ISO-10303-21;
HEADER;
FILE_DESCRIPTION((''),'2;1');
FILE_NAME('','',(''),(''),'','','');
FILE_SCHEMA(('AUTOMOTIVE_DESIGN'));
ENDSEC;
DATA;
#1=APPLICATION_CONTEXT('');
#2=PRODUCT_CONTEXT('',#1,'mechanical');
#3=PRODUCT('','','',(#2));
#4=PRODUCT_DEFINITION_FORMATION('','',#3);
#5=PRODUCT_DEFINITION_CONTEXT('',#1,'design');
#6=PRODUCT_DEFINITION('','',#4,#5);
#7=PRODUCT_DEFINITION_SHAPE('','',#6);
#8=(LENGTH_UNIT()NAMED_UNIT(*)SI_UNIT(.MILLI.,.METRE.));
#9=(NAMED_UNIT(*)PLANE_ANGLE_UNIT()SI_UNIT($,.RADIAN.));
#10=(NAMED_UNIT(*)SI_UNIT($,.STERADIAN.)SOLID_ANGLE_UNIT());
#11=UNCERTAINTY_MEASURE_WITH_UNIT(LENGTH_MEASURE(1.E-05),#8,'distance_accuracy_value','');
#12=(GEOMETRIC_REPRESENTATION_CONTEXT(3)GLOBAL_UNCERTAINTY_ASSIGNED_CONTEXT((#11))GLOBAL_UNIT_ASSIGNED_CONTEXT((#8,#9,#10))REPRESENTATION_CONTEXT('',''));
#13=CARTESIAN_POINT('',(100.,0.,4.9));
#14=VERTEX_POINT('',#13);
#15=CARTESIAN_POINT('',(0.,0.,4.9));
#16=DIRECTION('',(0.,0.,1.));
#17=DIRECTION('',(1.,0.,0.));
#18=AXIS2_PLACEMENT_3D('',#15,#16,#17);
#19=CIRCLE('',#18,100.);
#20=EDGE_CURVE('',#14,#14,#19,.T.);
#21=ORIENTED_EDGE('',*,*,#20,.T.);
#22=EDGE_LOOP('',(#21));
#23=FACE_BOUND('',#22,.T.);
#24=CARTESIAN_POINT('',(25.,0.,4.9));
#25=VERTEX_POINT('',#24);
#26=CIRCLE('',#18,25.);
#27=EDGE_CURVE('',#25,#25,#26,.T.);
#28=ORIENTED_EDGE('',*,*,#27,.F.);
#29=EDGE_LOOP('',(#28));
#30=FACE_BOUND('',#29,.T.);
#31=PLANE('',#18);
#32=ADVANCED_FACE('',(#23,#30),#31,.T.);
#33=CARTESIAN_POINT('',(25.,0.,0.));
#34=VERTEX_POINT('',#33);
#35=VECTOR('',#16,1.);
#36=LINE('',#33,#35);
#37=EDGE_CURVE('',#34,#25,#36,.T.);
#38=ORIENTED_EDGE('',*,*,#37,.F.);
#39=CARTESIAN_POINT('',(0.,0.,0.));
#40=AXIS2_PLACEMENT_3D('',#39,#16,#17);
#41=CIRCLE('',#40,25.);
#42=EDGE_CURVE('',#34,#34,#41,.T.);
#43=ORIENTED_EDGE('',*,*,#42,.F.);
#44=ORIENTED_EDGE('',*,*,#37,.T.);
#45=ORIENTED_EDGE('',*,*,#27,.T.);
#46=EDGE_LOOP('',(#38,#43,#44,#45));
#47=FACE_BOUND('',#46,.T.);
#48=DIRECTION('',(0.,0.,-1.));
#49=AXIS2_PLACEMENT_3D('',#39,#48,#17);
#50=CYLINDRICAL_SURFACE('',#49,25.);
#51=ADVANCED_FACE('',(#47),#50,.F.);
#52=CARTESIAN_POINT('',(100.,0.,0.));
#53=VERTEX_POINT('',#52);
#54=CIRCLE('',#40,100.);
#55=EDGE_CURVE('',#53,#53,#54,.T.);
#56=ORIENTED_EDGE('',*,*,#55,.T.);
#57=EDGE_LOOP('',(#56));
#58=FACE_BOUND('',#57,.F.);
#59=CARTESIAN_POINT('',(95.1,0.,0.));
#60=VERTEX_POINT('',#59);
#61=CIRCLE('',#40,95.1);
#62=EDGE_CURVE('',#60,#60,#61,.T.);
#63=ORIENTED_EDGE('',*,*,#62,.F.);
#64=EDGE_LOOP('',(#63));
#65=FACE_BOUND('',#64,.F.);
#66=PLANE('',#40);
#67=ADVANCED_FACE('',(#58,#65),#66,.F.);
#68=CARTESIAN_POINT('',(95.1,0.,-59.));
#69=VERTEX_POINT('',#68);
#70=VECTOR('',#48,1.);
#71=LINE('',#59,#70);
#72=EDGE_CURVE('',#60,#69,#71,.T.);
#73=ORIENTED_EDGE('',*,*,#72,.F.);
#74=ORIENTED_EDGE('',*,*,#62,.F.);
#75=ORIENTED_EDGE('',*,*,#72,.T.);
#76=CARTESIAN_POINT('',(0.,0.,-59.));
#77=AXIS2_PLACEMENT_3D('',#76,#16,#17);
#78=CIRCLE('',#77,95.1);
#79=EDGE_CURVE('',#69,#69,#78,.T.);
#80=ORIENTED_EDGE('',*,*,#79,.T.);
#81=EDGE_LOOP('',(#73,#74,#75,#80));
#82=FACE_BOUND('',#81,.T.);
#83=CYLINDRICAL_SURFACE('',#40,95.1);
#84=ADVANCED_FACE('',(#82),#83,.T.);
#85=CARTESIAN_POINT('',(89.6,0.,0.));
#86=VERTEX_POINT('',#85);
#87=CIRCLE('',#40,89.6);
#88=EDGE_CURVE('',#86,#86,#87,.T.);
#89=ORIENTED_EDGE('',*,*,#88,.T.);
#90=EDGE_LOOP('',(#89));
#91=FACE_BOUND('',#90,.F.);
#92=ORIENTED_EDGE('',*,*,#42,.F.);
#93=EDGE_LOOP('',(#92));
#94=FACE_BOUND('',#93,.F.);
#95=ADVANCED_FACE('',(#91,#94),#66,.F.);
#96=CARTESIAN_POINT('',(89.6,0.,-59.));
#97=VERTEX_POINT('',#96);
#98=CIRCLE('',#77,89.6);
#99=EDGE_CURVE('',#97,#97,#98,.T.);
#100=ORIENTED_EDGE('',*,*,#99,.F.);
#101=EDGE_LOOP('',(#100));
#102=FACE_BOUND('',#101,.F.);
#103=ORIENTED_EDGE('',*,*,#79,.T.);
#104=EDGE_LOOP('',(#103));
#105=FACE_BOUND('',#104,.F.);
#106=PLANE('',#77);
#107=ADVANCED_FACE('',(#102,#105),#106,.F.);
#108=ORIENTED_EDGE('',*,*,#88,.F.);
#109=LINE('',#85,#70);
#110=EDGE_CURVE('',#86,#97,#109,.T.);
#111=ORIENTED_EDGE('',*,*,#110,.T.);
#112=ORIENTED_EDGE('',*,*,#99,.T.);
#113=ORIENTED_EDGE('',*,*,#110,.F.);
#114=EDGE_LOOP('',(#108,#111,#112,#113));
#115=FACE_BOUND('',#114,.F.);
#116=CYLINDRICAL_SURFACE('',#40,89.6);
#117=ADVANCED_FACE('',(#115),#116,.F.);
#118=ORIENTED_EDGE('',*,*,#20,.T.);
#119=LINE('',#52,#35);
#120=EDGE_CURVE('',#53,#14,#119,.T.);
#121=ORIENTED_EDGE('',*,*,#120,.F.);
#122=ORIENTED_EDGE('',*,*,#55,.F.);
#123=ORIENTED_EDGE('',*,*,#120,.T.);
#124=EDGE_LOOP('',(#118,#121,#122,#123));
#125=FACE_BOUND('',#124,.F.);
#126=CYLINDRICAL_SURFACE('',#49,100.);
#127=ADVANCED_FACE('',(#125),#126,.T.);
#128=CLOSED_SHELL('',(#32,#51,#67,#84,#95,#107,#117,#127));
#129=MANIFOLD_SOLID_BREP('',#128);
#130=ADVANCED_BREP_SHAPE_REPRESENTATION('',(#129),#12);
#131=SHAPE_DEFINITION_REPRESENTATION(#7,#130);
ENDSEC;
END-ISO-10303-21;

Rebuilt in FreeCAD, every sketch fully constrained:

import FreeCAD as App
import Part
import Sketcher
Q = App.Units.Quantity

doc = App.newDocument("Part")
body = doc.addObject("PartDesign::Body", "Body")

# Sketch on XY plane
sketch1 = doc.addObject("Sketcher::SketchObject", "Sketch")
body.addObject(sketch1)
sketch1.AttachmentSupport = (doc.XY_Plane, [""])
sketch1.MapMode = "FlatFace"
sketch1.addGeometry([
    Part.Circle(App.Vector(0, 0, 0), App.Vector(0, 0, 1), 100),
    Part.Circle(App.Vector(0, 0, 0), App.Vector(0, 0, 1), 25),
], False)
sketch1.addConstraint([
    Sketcher.Constraint("Coincident", 0, 3, -1, 1),
    Sketcher.Constraint("Coincident", 1, 3, -1, 1),
    Sketcher.Constraint("Diameter", 0, Q("200 mm")),
    Sketcher.Constraint("Diameter", 1, Q("50 mm")),
])
pad1 = doc.addObject("PartDesign::Pad", "Pad")
body.addObject(pad1)
pad1.Profile = sketch1
pad1.Length = 4.9

# Sketch on XY plane
sketch2 = doc.addObject("Sketcher::SketchObject", "Sketch001")
body.addObject(sketch2)
sketch2.AttachmentSupport = (doc.XY_Plane, [""])
sketch2.MapMode = "FlatFace"
sketch2.addGeometry([
    Part.Circle(App.Vector(0, 0, 0), App.Vector(0, 0, 1), 95),
    Part.Circle(App.Vector(0, 0, 0), App.Vector(0, 0, 1), 90),
], False)
sketch2.addConstraint([
    Sketcher.Constraint("Coincident", 0, 3, -1, 1),
    Sketcher.Constraint("Coincident", 1, 3, -1, 1),
    Sketcher.Constraint("Diameter", 0, Q("190.2 mm")),
    Sketcher.Constraint("Diameter", 1, Q("179.2 mm")),
])
pad2 = doc.addObject("PartDesign::Pad", "Pad001")
body.addObject(pad2)
pad2.Profile = sketch2
pad2.Length = 59
pad2.Reversed = True

doc.recompute()
